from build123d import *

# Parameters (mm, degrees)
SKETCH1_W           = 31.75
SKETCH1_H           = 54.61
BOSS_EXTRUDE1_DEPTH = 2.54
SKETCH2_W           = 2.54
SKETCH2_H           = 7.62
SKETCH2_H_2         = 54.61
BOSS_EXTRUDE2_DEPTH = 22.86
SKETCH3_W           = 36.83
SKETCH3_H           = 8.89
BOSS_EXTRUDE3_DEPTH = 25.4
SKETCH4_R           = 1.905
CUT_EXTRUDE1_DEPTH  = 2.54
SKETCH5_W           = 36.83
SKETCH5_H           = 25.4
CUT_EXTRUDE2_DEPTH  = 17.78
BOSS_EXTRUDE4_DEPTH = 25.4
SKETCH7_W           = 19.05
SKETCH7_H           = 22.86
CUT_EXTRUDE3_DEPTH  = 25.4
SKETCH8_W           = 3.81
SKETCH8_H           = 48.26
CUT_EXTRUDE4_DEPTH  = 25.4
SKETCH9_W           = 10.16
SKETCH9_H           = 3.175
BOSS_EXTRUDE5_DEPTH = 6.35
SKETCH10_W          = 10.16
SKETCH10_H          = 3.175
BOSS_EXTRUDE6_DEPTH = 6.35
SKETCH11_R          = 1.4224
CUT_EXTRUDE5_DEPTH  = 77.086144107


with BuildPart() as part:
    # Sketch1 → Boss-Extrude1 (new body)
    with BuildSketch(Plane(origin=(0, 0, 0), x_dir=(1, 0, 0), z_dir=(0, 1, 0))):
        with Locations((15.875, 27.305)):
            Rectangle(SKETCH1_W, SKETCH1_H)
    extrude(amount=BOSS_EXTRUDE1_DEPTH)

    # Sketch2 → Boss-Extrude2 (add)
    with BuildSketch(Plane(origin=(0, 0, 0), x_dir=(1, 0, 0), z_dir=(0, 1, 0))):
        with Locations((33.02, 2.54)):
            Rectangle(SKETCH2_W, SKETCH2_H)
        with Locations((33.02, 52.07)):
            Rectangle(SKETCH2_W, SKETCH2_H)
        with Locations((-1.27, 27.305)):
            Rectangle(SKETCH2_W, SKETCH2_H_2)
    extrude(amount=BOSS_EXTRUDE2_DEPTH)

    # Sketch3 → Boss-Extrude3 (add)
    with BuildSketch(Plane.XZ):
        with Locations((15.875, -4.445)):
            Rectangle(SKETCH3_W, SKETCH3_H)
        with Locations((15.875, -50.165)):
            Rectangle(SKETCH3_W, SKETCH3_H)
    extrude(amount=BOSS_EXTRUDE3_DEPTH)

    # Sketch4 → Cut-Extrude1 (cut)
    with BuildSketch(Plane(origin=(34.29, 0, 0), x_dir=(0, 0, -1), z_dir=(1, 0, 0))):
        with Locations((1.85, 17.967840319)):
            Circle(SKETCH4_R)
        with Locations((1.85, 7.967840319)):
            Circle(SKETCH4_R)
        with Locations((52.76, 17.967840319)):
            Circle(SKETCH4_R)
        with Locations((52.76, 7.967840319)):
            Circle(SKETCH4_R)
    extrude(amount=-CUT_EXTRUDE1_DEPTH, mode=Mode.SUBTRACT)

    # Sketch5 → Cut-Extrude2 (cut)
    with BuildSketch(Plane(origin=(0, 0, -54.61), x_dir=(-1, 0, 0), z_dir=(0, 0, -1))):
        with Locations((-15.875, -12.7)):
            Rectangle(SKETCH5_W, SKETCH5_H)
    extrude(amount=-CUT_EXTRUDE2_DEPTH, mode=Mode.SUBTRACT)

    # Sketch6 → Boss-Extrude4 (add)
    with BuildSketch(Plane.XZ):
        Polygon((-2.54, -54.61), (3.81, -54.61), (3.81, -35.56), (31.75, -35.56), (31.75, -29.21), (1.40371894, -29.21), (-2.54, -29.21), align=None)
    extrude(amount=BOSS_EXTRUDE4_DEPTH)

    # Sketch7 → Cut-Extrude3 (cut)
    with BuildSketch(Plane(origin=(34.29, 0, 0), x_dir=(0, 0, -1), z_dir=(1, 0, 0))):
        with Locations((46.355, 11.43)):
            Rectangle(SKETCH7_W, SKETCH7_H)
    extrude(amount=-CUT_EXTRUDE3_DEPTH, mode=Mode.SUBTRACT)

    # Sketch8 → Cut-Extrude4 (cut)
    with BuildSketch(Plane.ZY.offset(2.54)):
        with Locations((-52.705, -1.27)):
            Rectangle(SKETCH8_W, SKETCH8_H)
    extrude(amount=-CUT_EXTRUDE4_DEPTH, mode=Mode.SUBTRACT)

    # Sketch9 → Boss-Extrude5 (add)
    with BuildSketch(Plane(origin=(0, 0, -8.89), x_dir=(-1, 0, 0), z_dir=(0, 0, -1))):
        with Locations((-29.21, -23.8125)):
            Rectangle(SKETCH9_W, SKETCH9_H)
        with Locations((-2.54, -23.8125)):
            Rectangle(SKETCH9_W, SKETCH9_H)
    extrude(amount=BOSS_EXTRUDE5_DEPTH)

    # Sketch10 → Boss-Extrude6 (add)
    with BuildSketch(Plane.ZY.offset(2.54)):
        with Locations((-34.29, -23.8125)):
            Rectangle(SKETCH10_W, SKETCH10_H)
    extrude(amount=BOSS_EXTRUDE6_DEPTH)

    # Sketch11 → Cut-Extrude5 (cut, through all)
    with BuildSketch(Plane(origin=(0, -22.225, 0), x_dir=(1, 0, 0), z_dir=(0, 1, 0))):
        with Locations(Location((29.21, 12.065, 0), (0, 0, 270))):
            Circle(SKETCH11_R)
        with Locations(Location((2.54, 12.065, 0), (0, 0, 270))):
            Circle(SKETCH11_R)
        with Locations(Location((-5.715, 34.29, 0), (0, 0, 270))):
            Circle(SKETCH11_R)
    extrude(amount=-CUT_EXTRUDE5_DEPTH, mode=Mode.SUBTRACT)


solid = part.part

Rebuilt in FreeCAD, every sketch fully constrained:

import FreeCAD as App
import Part
import Sketcher

V = App.Vector
Q = App.Units.Quantity

doc = App.newDocument("Part")
body = doc.addObject("PartDesign::Body", "Body")

# Sketch on XZ plane
sketch1 = doc.addObject("Sketcher::SketchObject", "Sketch")
body.addObject(sketch1)
sketch1.AttachmentSupport = (doc.XZ_Plane, [""])
sketch1.MapMode = "FlatFace"
sketch1.addGeometry([
    Part.LineSegment(V(0, -55, 0), V(0, 0, 0)),
    Part.LineSegment(V(0, 0, 0), V(32, 0, 0)),
    Part.LineSegment(V(32, 0, 0), V(32, -55, 0)),
    Part.LineSegment(V(32, -55, 0), V(0, -55, 0)),
], False)
sketch1.addConstraint([
    Sketcher.Constraint("Coincident", 0, 2, 1, 1),
    Sketcher.Constraint("Coincident", 1, 2, 2, 1),
    Sketcher.Constraint("Coincident", 2, 2, 3, 1),
    Sketcher.Constraint("Coincident", 3, 2, 0, 1),
    Sketcher.Constraint("Vertical", 0),
    Sketcher.Constraint("Horizontal", 1),
    Sketcher.Constraint("Vertical", 2),
    Sketcher.Constraint("Horizontal", 3),
    Sketcher.Constraint("Coincident", 0, 2, -1, 1),
    Sketcher.Constraint("DistanceX", 1, 1, 1, 2, Q("1.25 in")),
    Sketcher.Constraint("DistanceY", 0, 1, 0, 2, Q("2.15 in")),
])
pad1 = doc.addObject("PartDesign::Pad", "Pad")
body.addObject(pad1)
pad1.Profile = sketch1
pad1.Length = Q("0.1 in")
pad1.Reversed = True

# Sketch on XZ plane
sketch2 = doc.addObject("Sketcher::SketchObject", "Sketch001")
body.addObject(sketch2)
sketch2.AttachmentSupport = (doc.XZ_Plane, [""])
sketch2.MapMode = "FlatFace"
sketch2.addGeometry([
    Part.LineSegment(V(31.8, -6.3, 0), V(31.8, 1.3, 0)),  # 0
    Part.LineSegment(V(31.8, 1.3, 0), V(34.3, 1.3, 0)),  # 1
    Part.LineSegment(V(34.3, 1.3, 0), V(34.3, -6.3, 0)),  # 2
    Part.LineSegment(V(34.3, -6.3, 0), V(31.8, -6.3, 0)),  # 3
    Part.LineSegment(V(31.8, -55.9, 0), V(31.8, -48.3, 0)),  # 4
    Part.LineSegment(V(31.8, -48.3, 0), V(34.3, -48.3, 0)),  # 5
    Part.LineSegment(V(34.3, -48.3, 0), V(34.3, -55.9, 0)),  # 6
    Part.LineSegment(V(34.3, -55.9, 0), V(31.8, -55.9, 0)),  # 7
    Part.LineSegment(V(-2.5, -54.6, 0), V(-2.5, 0, 0)),  # 8
    Part.LineSegment(V(-2.5, 0, 0), V(0, 0, 0)),  # 9
    Part.LineSegment(V(0, 0, 0), V(0, -54.6, 0)),  # 10
    Part.LineSegment(V(0, -54.6, 0), V(-2.5, -54.6, 0)),  # 11
], False)
sketch2.addConstraint([
    Sketcher.Constraint("Coincident", 0, 2, 1, 1),
    Sketcher.Constraint("Coincident", 1, 2, 2, 1),
    Sketcher.Constraint("Coincident", 2, 2, 3, 1),
    Sketcher.Constraint("Coincident", 3, 2, 0, 1),
    Sketcher.Constraint("Coincident", 4, 2, 5, 1),
    Sketcher.Constraint("Coincident", 5, 2, 6, 1),
    Sketcher.Constraint("Coincident", 6, 2, 7, 1),
    Sketcher.Constraint("Coincident", 7, 2, 4, 1),
    Sketcher.Constraint("Coincident", 8, 2, 9, 1),
    Sketcher.Constraint("Coincident", 9, 2, 10, 1),
    Sketcher.Constraint("Coincident", 10, 2, 11, 1),
    Sketcher.Constraint("Coincident", 11, 2, 8, 1),
    Sketcher.Constraint("Vertical", 0),
    Sketcher.Constraint("Horizontal", 1),
    Sketcher.Constraint("Vertical", 2),
    Sketcher.Constraint("Horizontal", 3),
    Sketcher.Constraint("Vertical", 4),
    Sketcher.Constraint("Horizontal", 5),
    Sketcher.Constraint("Vertical", 6),
    Sketcher.Constraint("Horizontal", 7),
    Sketcher.Constraint("Vertical", 8),
    Sketcher.Constraint("Horizontal", 9),
    Sketcher.Constraint("Vertical", 10),
    Sketcher.Constraint("Horizontal", 11),
    Sketcher.Constraint("Coincident", 9, 2, -1, 1),
    Sketcher.Constraint("Vertical", 3, 2, 4, 2),
    Sketcher.Constraint("Vertical", 2, 2, 5, 2),
    Sketcher.Constraint("Equal", 7, 9),
    Sketcher.Constraint("Equal", 2, 4),
    Sketcher.Constraint("DistanceX", 1, 1, 1, 2, Q("0.1 in")),
    Sketcher.Constraint("DistanceY", 0, 1, 0, 2, Q("0.3 in")),
    Sketcher.Constraint("DistanceY", 8, 1, 8, 2, Q("2.15 in")),
    Sketcher.Constraint("DistanceY", 4, 2, -1, 1, Q("1.9 in")),
    Sketcher.Constraint("DistanceX", -1, 1, 0, 2, Q("1.25 in")),
    Sketcher.Constraint("DistanceY", -1, 1, 0, 2, Q("0.05 in")),
])
pad2 = doc.addObject("PartDesign::Pad", "Pad001")
body.addObject(pad2)
pad2.Profile = sketch2
pad2.Length = Q("0.9 in")
pad2.Reversed = True

# Sketch on XZ plane
sketch3 = doc.addObject("Sketcher::SketchObject", "Sketch002")
body.addObject(sketch3)
sketch3.AttachmentSupport = (doc.XZ_Plane, [""])
sketch3.MapMode = "FlatFace"
sketch3.addGeometry([
    Part.LineSegment(V(-3, 0, 0), V(-3, -9, 0)),  # 0
    Part.LineSegment(V(-3, -9, 0), V(34, -9, 0)),  # 1
    Part.LineSegment(V(34, -9, 0), V(34, 0, 0)),  # 2
    Part.LineSegment(V(34, 0, 0), V(-3, 0, 0)),  # 3
    Part.LineSegment(V(-3, -46, 0), V(-3, -55, 0)),  # 4
    Part.LineSegment(V(-3, -55, 0), V(34, -55, 0)),  # 5
    Part.LineSegment(V(34, -55, 0), V(34, -46, 0)),  # 6
    Part.LineSegment(V(34, -46, 0), V(-3, -46, 0)),  # 7
], False)
sketch3.addConstraint([
    Sketcher.Constraint("Coincident", 0, 2, 1, 1),
    Sketcher.Constraint("Coincident", 1, 2, 2, 1),
    Sketcher.Constraint("Coincident", 2, 2, 3, 1),
    Sketcher.Constraint("Coincident", 3, 2, 0, 1),
    Sketcher.Constraint("Coincident", 4, 2, 5, 1),
    Sketcher.Constraint("Coincident", 5, 2, 6, 1),
    Sketcher.Constraint("Coincident", 6, 2, 7, 1),
    Sketcher.Constraint("Coincident", 7, 2, 4, 1),
    Sketcher.Constraint("Vertical", 0),
    Sketcher.Constraint("Horizontal", 1),
    Sketcher.Constraint("Vertical", 2),
    Sketcher.Constraint("Horizontal", 3),
    Sketcher.Constraint("Vertical", 4),
    Sketcher.Constraint("Horizontal", 5),
    Sketcher.Constraint("Vertical", 6),
    Sketcher.Constraint("Horizontal", 7),
    Sketcher.Constraint("PointOnObject", 2, 2, -1),
    Sketcher.Constraint("Vertical", 3, 2, 4, 2),
    Sketcher.Constraint("Vertical", 2, 2, 5, 2),
    Sketcher.Constraint("Equal", 2, 4),
    Sketcher.Constraint("DistanceX", 1, 1, 1, 2, Q("1.45 in")),
    Sketcher.Constraint("DistanceY", 0, 2, 0, 1, Q("0.35 in")),
    Sketcher.Constraint("DistanceX", 0, 2, -1, 1, Q("0.1 in")),
    Sketcher.Constraint("DistanceY", 6, 2, -1, 1, Q("1.8 in")),
])
pad3 = doc.addObject("PartDesign::Pad", "Pad002")
body.addObject(pad3)
pad3.Profile = sketch3
pad3.Length = Q("1 in")

# Sketch on YZ plane
sketch4 = doc.addObject("Sketcher::SketchObject", "Sketch003")
body.addObject(sketch4)
sketch4.AttachmentSupport = (doc.YZ_Plane, [""])
sketch4.MapMode = "FlatFace"
sketch4.AttachmentOffset = App.Placement(V(0, 0, 1.35 * 25.4), App.Rotation())
sketch4.addGeometry([
    Part.Circle(V(18, -1.9, 0), V(0, 0, 1), 1.9),
    Part.Circle(V(8, -1.9, 0), V(0, 0, 1), 1.9),
    Part.Circle(V(18, -52.8, 0), V(0, 0, 1), 1.9),
    Part.Circle(V(8, -52.8, 0), V(0, 0, 1), 1.9),
], False)
sketch4.addConstraint([
    Sketcher.Constraint("Equal", 0, 1),
    Sketcher.Constraint("Equal", 1, 2),
    Sketcher.Constraint("Equal", 2, 3),
    Sketcher.Constraint("Horizontal", 0, 3, 1, 3),
    Sketcher.Constraint("Horizontal", 2, 3, 3, 3),
    Sketcher.Constraint("Vertical", 0, 3, 2, 3),
    Sketcher.Constraint("Vertical", 1, 3, 3, 3),
    Sketcher.Constraint("Diameter", 0, Q("0.15 in")),
    Sketcher.Constraint("DistanceY", 0, 3, -1, 1, 1.85),
    Sketcher.Constraint("DistanceY", 2, 3, -1, 1, 52.76),
    Sketcher.Constraint("DistanceX", 1, 3, 0, 3, 10.0),
    Sketcher.Constraint("DistanceX", -1, 1, 0, 3, 17.96784),
])
pocket1 = doc.addObject("PartDesign::Pocket", "Pocket")
body.addObject(pocket1)
pocket1.Profile = sketch4
pocket1.Length = Q("0.1 in")

# Sketch on XY plane
sketch5 = doc.addObject("Sketcher::SketchObject", "Sketch004")
body.addObject(sketch5)
sketch5.AttachmentSupport = (doc.XY_Plane, [""])
sketch5.MapMode = "FlatFace"
sketch5.AttachmentOffset = App.Placement(V(0, 0, -2.15 * 25.4), App.Rotation())
sketch5.addGeometry([
    Part.LineSegment(V(34, 0, 0), V(34, -25, 0)),
    Part.LineSegment(V(34, -25, 0), V(-3, -25, 0)),
    Part.LineSegment(V(-3, -25, 0), V(-3, 0, 0)),
    Part.LineSegment(V(-3, 0, 0), V(34, 0, 0)),
], False)
sketch5.addConstraint([
    Sketcher.Constraint("Coincident", 0, 2, 1, 1),
    Sketcher.Constraint("Coincident", 1, 2, 2, 1),
    Sketcher.Constraint("Coincident", 2, 2, 3, 1),
    Sketcher.Constraint("Coincident", 3, 2, 0, 1),
    Sketcher.Constraint("Vertical", 0),
    Sketcher.Constraint("Horizontal", 1),
    Sketcher.Constraint("Vertical", 2),
    Sketcher.Constraint("Horizontal", 3),
    Sketcher.Constraint("PointOnObject", 2, 2, -1),
    Sketcher.Constraint("DistanceY", 0, 2, 0, 1, Q("1 in")),
    Sketcher.Constraint("DistanceX", 1, 2, 1, 1, Q("1.45 in")),
    Sketcher.Constraint("DistanceX", 1, 2, -1, 1, Q("0.1 in")),
])
pocket2 = doc.addObject("PartDesign::Pocket", "Pocket001")
body.addObject(pocket2)
pocket2.Profile = sketch5
pocket2.Length = Q("0.7 in")
pocket2.Reversed = True

# Sketch on XZ plane
sketch6 = doc.addObject("Sketcher::SketchObject", "Sketch005")
body.addObject(sketch6)
sketch6.AttachmentSupport = (doc.XZ_Plane, [""])
sketch6.MapMode = "FlatFace"
sketch6.addGeometry([
    Part.LineSegment(V(-3, -55, 0), V(4, -55, 0)),  # 0
    Part.LineSegment(V(4, -55, 0), V(4, -36, 0)),  # 1
    Part.LineSegment(V(4, -36, 0), V(32, -36, 0)),  # 2
    Part.LineSegment(V(32, -36, 0), V(32, -29, 0)),  # 3
    Part.LineSegment(V(32, -29, 0), V(-3, -29, 0)),  # 4
    Part.LineSegment(V(-3, -29, 0), V(-3, -55, 0)),  # 5
], False)
sketch6.addConstraint([
    Sketcher.Constraint("Coincident", 0, 2, 1, 1),
    Sketcher.Constraint("Coincident", 1, 2, 2, 1),
    Sketcher.Constraint("Coincident", 2, 2, 3, 1),
    Sketcher.Constraint("Coincident", 3, 2, 4, 1),
    Sketcher.Constraint("Coincident", 4, 2, 5, 1),
    Sketcher.Constraint("Coincident", 5, 2, 0, 1),
    Sketcher.Constraint("Horizontal", 0),
    Sketcher.Constraint("Vertical", 1),
    Sketcher.Constraint("Horizontal", 2),
    Sketcher.Constraint("Vertical", 3),
    Sketcher.Constraint("Horizontal", 4),
    Sketcher.Constraint("Vertical", 5),
    Sketcher.Constraint("Equal", 0, 3),
    Sketcher.Constraint("DistanceY", 5, 2, 5, 1, Q("1 in")),
    Sketcher.Constraint("DistanceX", 2, 1, 2, 2, Q("1.1 in")),
    Sketcher.Constraint("DistanceX", 0, 1, 0, 2, Q("0.25 in")),
    Sketcher.Constraint("DistanceY", 1, 2, -1, 1, Q("1.4 in")),
    Sketcher.Constraint("DistanceX", 4, 2, -1, 1, Q("0.1 in")),
])
pad4 = doc.addObject("PartDesign::Pad", "Pad003")
body.addObject(pad4)
pad4.Profile = sketch6
pad4.Length = Q("1 in")

# Sketch on YZ plane
sketch7 = doc.addObject("Sketcher::SketchObject", "Sketch006")
body.addObject(sketch7)
sketch7.AttachmentSupport = (doc.YZ_Plane, [""])
sketch7.MapMode = "FlatFace"
sketch7.AttachmentOffset = App.Placement(V(0, 0, 1.35 * 25.4), App.Rotation())
sketch7.addGeometry([
    Part.LineSegment(V(23, -37, 0), V(0, -37, 0)),
    Part.LineSegment(V(0, -37, 0), V(0, -56, 0)),
    Part.LineSegment(V(0, -56, 0), V(23, -56, 0)),
    Part.LineSegment(V(23, -56, 0), V(23, -37, 0)),
], False)
sketch7.addConstraint([
    Sketcher.Constraint("Coincident", 0, 2, 1, 1),
    Sketcher.Constraint("Coincident", 1, 2, 2, 1),
    Sketcher.Constraint("Coincident", 2, 2, 3, 1),
    Sketcher.Constraint("Coincident", 3, 2, 0, 1),
    Sketcher.Constraint("Horizontal", 0),
    Sketcher.Constraint("Vertical", 1),
    Sketcher.Constraint("Horizontal", 2),
    Sketcher.Constraint("Vertical", 3),
    Sketcher.Constraint("PointOnObject", 0, 2, -2),
    Sketcher.Constraint("DistanceX", 0, 2, 0, 1, Q("0.9 in")),
    Sketcher.Constraint("DistanceY", 1, 2, 1, 1, Q("0.75 in")),
    Sketcher.Constraint("DistanceY", 1, 2, -1, 1, Q("2.2 in")),
])
pocket3 = doc.addObject("PartDesign::Pocket", "Pocket002")
body.addObject(pocket3)
pocket3.Profile = sketch7
pocket3.Length = Q("1 in")

# Sketch on YZ plane
sketch8 = doc.addObject("Sketcher::SketchObject", "Sketch007")
body.addObject(sketch8)
sketch8.AttachmentSupport = (doc.YZ_Plane, [""])
sketch8.MapMode = "FlatFace"
sketch8.AttachmentOffset = App.Placement(V(0, 0, -0.1 * 25.4), App.Rotation())
sketch8.addGeometry([
    Part.LineSegment(V(22.9, -54.6, 0), V(-25.4, -54.6, 0)),
    Part.LineSegment(V(-25.4, -54.6, 0), V(-25.4, -50.8, 0)),
    Part.LineSegment(V(-25.4, -50.8, 0), V(22.9, -50.8, 0)),
    Part.LineSegment(V(22.9, -50.8, 0), V(22.9, -54.6, 0)),
], False)
sketch8.addConstraint([
    Sketcher.Constraint("Coincident", 0, 2, 1, 1),
    Sketcher.Constraint("Coincident", 1, 2, 2, 1),
    Sketcher.Constraint("Coincident", 2, 2, 3, 1),
    Sketcher.Constraint("Coincident", 3, 2, 0, 1),
    Sketcher.Constraint("Horizontal", 0),
    Sketcher.Constraint("Vertical", 1),
    Sketcher.Constraint("Horizontal", 2),
    Sketcher.Constraint("Vertical", 3),
    Sketcher.Constraint("DistanceX", 0, 2, 0, 1, Q("1.9 in")),
    Sketcher.Constraint("DistanceX", 0, 2, -1, 1, Q("1 in")),
    Sketcher.Constraint("DistanceY", 1, 2, -1, 1, Q("2 in")),
    Sketcher.Constraint("DistanceY", 1, 1, 1, 2, Q("0.15 in")),
])
pocket4 = doc.addObject("PartDesign::Pocket", "Pocket003")
body.addObject(pocket4)
pocket4.Profile = sketch8
pocket4.Length = Q("1 in")
pocket4.Reversed = True

# Sketch on XY plane
sketch9 = doc.addObject("Sketcher::SketchObject", "Sketch008")
body.addObject(sketch9)
sketch9.AttachmentSupport = (doc.XY_Plane, [""])
sketch9.MapMode = "FlatFace"
sketch9.AttachmentOffset = App.Placement(V(0, 0, -0.35 * 25.4), App.Rotation())
sketch9.addGeometry([
    Part.LineSegment(V(34.3, -22.2, 0), V(34.3, -25.4, 0)),  # 0
    Part.LineSegment(V(34.3, -25.4, 0), V(24.1, -25.4, 0)),  # 1
    Part.LineSegment(V(24.1, -25.4, 0), V(24.1, -22.2, 0)),  # 2
    Part.LineSegment(V(24.1, -22.2, 0), V(34.3, -22.2, 0)),  # 3
    Part.LineSegment(V(7.6, -22.2, 0), V(7.6, -25.4, 0)),  # 4
    Part.LineSegment(V(7.6, -25.4, 0), V(-2.5, -25.4, 0)),  # 5
    Part.LineSegment(V(-2.5, -25.4, 0), V(-2.5, -22.2, 0)),  # 6
    Part.LineSegment(V(-2.5, -22.2, 0), V(7.6, -22.2, 0)),  # 7
], False)
sketch9.addConstraint([
    Sketcher.Constraint("Coincident", 0, 2, 1, 1),
    Sketcher.Constraint("Coincident", 1, 2, 2, 1),
    Sketcher.Constraint("Coincident", 2, 2, 3, 1),
    Sketcher.Constraint("Coincident", 3, 2, 0, 1),
    Sketcher.Constraint("Coincident", 4, 2, 5, 1),
    Sketcher.Constraint("Coincident", 5, 2, 6, 1),
    Sketcher.Constraint("Coincident", 6, 2, 7, 1),
    Sketcher.Constraint("Coincident", 7, 2, 4, 1),
    Sketcher.Constraint("Vertical", 0),
    Sketcher.Constraint("Horizontal", 1),
    Sketcher.Constraint("Vertical", 2),
    Sketcher.Constraint("Horizontal", 3),
    Sketcher.Constraint("Vertical", 4),
    Sketcher.Constraint("Horizontal", 5),
    Sketcher.Constraint("Vertical", 6),
    Sketcher.Constraint("Horizontal", 7),
    Sketcher.Constraint("Horizontal", 1, 2, 4, 2),
    Sketcher.Constraint("Horizontal", 3, 2, 6, 2),
    Sketcher.Constraint("Equal", 3, 5),
    Sketcher.Constraint("DistanceX", 1, 2, 1, 1, Q("0.4 in")),
    Sketcher.Constraint("DistanceY", 0, 2, -1, 1, Q("1 in")),
    Sketcher.Constraint("DistanceX", -1, 1, 4, 2, Q("0.3 in")),
    Sketcher.Constraint("DistanceY", 0, 2, 0, 1, Q("0.125 in")),
    Sketcher.Constraint("DistanceX", -1, 1, 0, 2, Q("1.35 in")),
])
pad5 = doc.addObject("PartDesign::Pad", "Pad004")
body.addObject(pad5)
pad5.Profile = sketch9
pad5.Length = Q("0.25 in")
pad5.Reversed = True

# Sketch on YZ plane
sketch10 = doc.addObject("Sketcher::SketchObject", "Sketch009")
body.addObject(sketch10)
sketch10.AttachmentSupport = (doc.YZ_Plane, [""])
sketch10.MapMode = "FlatFace"
sketch10.AttachmentOffset = App.Placement(V(0, 0, -0.1 * 25.4), App.Rotation())
sketch10.addGeometry([
    Part.LineSegment(V(-22.2, -39.4, 0), V(-25.4, -39.4, 0)),
    Part.LineSegment(V(-25.4, -39.4, 0), V(-25.4, -29.2, 0)),
    Part.LineSegment(V(-25.4, -29.2, 0), V(-22.2, -29.2, 0)),
    Part.LineSegment(V(-22.2, -29.2, 0), V(-22.2, -39.4, 0)),
], False)
sketch10.addConstraint([
    Sketcher.Constraint("Coincident", 0, 2, 1, 1),
    Sketcher.Constraint("Coincident", 1, 2, 2, 1),
    Sketcher.Constraint("Coincident", 2, 2, 3, 1),
    Sketcher.Constraint("Coincident", 3, 2, 0, 1),
    Sketcher.Constraint("Horizontal", 0),
    Sketcher.Constraint("Vertical", 1),
    Sketcher.Constraint("Horizontal", 2),
    Sketcher.Constraint("Vertical", 3),
    Sketcher.Constraint("DistanceY", 1, 1, 1, 2, Q("0.4 in")),
    Sketcher.Constraint("DistanceX", 0, 2, -1, 1, Q("1 in")),
    Sketcher.Constraint("DistanceX", 0, 2, 0, 1, Q("0.125 in")),
    Sketcher.Constraint("DistanceY", 0, 2, -1, 1, Q("1.55 in")),
])
pad6 = doc.addObject("PartDesign::Pad", "Pad005")
body.addObject(pad6)
pad6.Profile = sketch10
pad6.Length = Q("0.25 in")
pad6.Reversed = True

# Sketch on XZ plane
sketch11 = doc.addObject("Sketcher::SketchObject", "Sketch010")
body.addObject(sketch11)
sketch11.AttachmentSupport = (doc.XZ_Plane, [""])
sketch11.MapMode = "FlatFace"
sketch11.AttachmentOffset = App.Placement(V(0, 0, 0.875 * 25.4), App.Rotation())
sketch11.addGeometry([
    Part.Circle(V(29.2, -12.1, 0), V(0, 0, 1), 1.4),
    Part.Circle(V(2.5, -12.1, 0), V(0, 0, 1), 1.4),
    Part.Circle(V(-5.7, -34.3, 0), V(0, 0, 1), 1.4),
], False)
sketch11.addConstraint([
    Sketcher.Constraint("Equal", 0, 1),
    Sketcher.Constraint("Equal", 1, 2),
    Sketcher.Constraint("Horizontal", 0, 3, 1, 3),
    Sketcher.Constraint("Diameter", 0, Q("0.112 in")),
    Sketcher.Constraint("DistanceX", -1, 1, 1, 3, Q("0.1 in")),
    Sketcher.Constraint("DistanceX", -1, 1, 0, 3, Q("1.15 in")),
    Sketcher.Constraint("DistanceY", 2, 3, -1, 1, Q("1.35 in")),
    Sketcher.Constraint("DistanceY", 0, 3, -1, 1, Q("0.475 in")),
    Sketcher.Constraint("DistanceX", 2, 3, -1, 1, Q("0.225 in")),
])
pocket5 = doc.addObject("PartDesign::Pocket", "Pocket004")
body.addObject(pocket5)
pocket5.Profile = sketch11
pocket5.Type = "ThroughAll"
pocket5.Reversed = True

doc.recompute()
